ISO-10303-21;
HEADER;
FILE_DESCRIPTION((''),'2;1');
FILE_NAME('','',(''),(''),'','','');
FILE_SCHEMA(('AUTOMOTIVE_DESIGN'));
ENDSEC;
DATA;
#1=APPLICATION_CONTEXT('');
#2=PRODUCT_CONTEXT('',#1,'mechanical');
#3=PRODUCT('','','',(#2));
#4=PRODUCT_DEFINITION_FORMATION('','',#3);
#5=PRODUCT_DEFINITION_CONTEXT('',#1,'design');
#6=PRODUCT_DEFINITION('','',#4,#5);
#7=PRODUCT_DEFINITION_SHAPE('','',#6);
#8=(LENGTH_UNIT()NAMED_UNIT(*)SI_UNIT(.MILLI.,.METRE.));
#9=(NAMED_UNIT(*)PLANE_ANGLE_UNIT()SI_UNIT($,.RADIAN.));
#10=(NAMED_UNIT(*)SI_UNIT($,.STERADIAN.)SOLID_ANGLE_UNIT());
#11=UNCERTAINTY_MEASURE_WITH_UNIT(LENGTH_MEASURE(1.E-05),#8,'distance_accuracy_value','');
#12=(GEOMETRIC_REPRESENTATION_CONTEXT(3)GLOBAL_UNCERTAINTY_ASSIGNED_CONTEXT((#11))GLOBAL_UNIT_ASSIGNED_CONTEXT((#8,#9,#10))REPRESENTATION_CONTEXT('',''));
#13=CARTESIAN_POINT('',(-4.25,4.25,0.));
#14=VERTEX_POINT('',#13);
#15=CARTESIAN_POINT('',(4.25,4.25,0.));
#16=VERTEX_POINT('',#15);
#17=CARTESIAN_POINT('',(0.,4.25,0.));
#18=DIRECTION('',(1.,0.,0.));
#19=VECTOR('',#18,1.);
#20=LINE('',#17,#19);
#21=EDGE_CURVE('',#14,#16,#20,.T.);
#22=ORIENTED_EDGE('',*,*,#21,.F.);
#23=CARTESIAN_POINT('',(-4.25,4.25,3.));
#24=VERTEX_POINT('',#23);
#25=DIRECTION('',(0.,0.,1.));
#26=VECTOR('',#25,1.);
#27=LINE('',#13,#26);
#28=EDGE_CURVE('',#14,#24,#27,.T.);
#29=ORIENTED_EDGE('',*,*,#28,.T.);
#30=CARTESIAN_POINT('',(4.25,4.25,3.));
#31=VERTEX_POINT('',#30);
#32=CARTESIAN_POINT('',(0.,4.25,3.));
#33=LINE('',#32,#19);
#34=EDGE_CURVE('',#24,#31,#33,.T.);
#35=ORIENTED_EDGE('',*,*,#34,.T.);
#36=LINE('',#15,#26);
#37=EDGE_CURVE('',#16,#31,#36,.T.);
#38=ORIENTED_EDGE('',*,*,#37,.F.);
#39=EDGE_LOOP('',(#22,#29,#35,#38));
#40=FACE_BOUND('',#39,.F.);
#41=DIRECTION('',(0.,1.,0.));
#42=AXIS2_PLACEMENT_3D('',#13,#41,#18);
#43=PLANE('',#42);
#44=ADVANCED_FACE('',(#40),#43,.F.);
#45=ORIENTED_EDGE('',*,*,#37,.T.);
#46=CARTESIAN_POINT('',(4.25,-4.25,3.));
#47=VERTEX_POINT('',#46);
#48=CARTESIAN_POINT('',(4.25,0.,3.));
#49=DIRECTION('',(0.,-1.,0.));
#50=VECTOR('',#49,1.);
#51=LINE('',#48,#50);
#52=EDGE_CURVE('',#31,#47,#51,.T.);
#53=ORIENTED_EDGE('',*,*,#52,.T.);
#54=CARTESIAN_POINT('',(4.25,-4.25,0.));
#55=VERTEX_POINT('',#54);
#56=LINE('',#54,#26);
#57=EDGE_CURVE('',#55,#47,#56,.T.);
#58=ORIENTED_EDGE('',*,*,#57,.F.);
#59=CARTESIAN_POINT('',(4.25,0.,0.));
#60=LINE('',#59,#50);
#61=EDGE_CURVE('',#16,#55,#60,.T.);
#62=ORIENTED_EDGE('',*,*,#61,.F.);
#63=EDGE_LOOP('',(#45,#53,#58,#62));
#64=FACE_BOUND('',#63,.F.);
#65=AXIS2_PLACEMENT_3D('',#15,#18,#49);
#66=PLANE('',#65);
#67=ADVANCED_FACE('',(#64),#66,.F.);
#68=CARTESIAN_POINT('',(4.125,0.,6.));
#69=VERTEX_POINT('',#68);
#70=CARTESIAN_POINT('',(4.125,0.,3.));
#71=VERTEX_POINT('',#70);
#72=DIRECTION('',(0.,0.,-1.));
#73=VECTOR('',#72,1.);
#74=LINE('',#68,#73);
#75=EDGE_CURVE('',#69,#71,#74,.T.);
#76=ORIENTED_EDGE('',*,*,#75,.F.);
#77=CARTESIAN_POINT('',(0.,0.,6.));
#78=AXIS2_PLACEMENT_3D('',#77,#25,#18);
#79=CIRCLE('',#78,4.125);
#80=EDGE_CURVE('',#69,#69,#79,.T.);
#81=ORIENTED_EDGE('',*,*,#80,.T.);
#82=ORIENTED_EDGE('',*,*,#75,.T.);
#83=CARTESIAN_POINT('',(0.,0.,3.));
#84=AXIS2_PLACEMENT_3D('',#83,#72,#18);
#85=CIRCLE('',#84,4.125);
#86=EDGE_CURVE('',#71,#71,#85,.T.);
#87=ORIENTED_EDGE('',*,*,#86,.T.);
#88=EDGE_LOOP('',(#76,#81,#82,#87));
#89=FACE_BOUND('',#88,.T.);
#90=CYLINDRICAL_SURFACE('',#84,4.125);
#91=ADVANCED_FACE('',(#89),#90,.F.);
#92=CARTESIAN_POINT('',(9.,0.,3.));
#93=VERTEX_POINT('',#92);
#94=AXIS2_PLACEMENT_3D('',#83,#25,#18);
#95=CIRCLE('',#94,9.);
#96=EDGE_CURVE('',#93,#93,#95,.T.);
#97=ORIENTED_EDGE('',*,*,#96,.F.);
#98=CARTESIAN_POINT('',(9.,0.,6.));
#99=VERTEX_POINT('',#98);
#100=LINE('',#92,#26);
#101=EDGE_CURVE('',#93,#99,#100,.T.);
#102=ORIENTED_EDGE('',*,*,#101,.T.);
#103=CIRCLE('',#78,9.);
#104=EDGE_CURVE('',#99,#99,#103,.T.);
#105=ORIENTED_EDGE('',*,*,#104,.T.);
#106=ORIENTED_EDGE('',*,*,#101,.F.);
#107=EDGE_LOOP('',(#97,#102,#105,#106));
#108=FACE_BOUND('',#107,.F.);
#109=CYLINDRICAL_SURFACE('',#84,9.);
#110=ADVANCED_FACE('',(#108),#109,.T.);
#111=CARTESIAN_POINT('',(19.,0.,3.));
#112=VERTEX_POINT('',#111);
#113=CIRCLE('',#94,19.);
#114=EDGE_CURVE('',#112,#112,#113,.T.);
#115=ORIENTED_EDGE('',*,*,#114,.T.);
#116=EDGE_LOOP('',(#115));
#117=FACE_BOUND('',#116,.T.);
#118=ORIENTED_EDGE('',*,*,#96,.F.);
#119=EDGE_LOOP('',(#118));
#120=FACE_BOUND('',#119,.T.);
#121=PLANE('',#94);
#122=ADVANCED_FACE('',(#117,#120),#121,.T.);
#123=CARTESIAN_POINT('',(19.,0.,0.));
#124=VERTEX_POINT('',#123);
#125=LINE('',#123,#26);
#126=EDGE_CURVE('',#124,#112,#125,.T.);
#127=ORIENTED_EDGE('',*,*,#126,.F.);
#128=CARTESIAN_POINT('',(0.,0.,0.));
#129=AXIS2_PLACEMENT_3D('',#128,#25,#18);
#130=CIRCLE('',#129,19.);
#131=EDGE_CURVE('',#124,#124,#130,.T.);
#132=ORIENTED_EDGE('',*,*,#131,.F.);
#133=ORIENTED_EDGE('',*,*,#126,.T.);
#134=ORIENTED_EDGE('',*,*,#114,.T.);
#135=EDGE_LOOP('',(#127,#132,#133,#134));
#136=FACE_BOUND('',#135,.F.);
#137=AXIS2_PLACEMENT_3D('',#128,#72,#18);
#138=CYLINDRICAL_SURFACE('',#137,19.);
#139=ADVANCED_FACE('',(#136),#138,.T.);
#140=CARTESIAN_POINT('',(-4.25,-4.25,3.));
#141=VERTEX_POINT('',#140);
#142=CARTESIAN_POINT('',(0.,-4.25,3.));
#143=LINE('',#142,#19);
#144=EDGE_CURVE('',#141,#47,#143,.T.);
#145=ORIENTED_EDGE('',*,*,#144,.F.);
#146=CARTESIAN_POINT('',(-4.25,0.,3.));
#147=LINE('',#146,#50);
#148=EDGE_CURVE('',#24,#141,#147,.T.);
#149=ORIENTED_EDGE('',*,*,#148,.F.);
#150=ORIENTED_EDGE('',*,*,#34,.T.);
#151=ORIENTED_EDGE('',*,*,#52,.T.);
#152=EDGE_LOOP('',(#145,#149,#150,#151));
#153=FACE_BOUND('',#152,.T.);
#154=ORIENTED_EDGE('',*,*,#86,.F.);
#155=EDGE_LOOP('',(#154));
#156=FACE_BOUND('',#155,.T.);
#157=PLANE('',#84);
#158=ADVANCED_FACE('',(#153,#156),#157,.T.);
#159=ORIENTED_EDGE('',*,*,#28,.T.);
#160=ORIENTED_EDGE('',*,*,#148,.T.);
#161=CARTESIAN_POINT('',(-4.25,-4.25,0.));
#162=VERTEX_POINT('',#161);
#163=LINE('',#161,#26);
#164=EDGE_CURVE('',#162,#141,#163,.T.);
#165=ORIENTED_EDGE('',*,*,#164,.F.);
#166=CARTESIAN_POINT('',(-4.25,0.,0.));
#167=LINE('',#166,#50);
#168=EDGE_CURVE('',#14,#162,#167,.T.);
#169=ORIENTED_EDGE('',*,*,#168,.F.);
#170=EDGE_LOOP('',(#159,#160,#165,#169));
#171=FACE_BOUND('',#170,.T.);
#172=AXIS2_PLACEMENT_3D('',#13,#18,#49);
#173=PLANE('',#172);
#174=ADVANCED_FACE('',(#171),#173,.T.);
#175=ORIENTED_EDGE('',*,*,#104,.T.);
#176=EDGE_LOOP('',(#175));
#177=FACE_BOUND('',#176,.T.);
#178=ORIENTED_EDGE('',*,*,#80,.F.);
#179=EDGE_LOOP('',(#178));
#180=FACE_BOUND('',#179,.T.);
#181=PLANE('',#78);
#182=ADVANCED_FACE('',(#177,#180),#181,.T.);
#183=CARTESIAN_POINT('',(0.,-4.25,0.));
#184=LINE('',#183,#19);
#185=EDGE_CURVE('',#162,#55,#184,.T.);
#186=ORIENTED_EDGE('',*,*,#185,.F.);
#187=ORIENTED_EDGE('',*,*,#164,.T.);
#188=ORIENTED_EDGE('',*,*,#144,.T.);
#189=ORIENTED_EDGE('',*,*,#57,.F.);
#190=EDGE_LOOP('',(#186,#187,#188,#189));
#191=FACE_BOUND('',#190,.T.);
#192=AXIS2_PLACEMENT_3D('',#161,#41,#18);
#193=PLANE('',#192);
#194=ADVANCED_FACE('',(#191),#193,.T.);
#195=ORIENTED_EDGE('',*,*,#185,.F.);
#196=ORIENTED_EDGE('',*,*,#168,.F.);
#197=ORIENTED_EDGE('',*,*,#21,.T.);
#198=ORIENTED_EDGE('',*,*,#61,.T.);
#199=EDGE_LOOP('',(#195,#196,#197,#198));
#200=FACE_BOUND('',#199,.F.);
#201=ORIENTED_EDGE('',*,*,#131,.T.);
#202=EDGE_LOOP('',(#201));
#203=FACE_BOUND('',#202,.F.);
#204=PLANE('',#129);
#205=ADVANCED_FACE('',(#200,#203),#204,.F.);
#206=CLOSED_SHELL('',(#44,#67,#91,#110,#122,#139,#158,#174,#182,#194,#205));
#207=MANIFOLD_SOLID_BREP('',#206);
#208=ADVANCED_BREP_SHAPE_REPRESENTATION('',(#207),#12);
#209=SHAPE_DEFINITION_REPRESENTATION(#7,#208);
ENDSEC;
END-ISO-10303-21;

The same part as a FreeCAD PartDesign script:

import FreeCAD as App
import Part
import Sketcher
from FreeCAD import Vector


def add_polygon(sketch, points):
    """Adds a closed chain of lines whose ends are joined by coincident constraints."""
    first, n = sketch.GeometryCount, len(points)
    for a, b in zip(points, points[1:] + points[:1]):
        sketch.addGeometry(Part.LineSegment(App.Vector(*a, 0), App.Vector(*b, 0)), False)
    for i in range(n):
        sketch.addConstraint(Sketcher.Constraint("Coincident", first + i, 2, first + (i + 1) % n, 1))

doc = App.newDocument("Part")
body = doc.addObject("PartDesign::Body", "Body")

sketch1 = doc.addObject("Sketcher::SketchObject", "Sketch")
body.addObject(sketch1)
sketch1.AttachmentSupport = (doc.XY_Plane, [""])
sketch1.MapMode = "FlatFace"
sketch1.addGeometry([
    Part.Circle(Vector(0, 0, 0), Vector(0, 0, 1), 19),
    Part.Circle(Vector(0, 0, 0), Vector(0, 0, 1), 4.125),
], False)
sketch1.addConstraint([
    Sketcher.Constraint("Coincident", 0, 3, -1, 1),
    Sketcher.Constraint("Coincident", 1, 3, -1, 1),
    Sketcher.Constraint("Diameter", 0, 38.0),
    Sketcher.Constraint("Diameter", 1, 8.25),
])
pad1 = doc.addObject("PartDesign::Pad", "Pad")
body.addObject(pad1)
pad1.Profile = sketch1
pad1.Length = 3

sketch2 = doc.addObject("Sketcher::SketchObject", "Sketch001")
body.addObject(sketch2)
sketch2.AttachmentSupport = (doc.XY_Plane, [""])
sketch2.MapMode = "FlatFace"
sketch2.AttachmentOffset = App.Placement(Vector(0, 0, 3), App.Rotation())
sketch2.addGeometry([
    Part.Circle(Vector(0, 0, 0), Vector(0, 0, 1), 9),
    Part.Circle(Vector(0, 0, 0), Vector(0, 0, 1), 4.125),
], False)
sketch2.addConstraint([
    Sketcher.Constraint("Coincident", 0, 3, -1, 1),
    Sketcher.Constraint("Coincident", 1, 3, -1, 1),
    Sketcher.Constraint("Diameter", 0, 18.0),
    Sketcher.Constraint("Diameter", 1, 8.25),
])
pad2 = doc.addObject("PartDesign::Pad", "Pad001")
body.addObject(pad2)
pad2.Profile = sketch2
pad2.Length = 3

sketch3 = doc.addObject("Sketcher::SketchObject", "Sketch002")
body.addObject(sketch3)
sketch3.AttachmentSupport = (doc.XY_Plane, [""])
sketch3.MapMode = "FlatFace"
add_polygon(sketch3, [(-4.25, -4.25), (-4.25, 4.25), (4.25, 4.25), (4.25, -4.25)])
sketch3.addConstraint([
    Sketcher.Constraint("Vertical", 0),
    Sketcher.Constraint("Horizontal", 1),
    Sketcher.Constraint("Vertical", 2),
    Sketcher.Constraint("Horizontal", 3),
    Sketcher.Constraint("Symmetric", 0, 2, 2, 2, -1, 1),
    Sketcher.Constraint("Equal", 3, 0),
    Sketcher.Constraint("DistanceX", 1, 1, 1, 2, 8.5),
])
pocket1 = doc.addObject("PartDesign::Pocket", "Pocket")
body.addObject(pocket1)
pocket1.Profile = sketch3
pocket1.Length = 3
pocket1.Reversed = True

doc.recompute()
